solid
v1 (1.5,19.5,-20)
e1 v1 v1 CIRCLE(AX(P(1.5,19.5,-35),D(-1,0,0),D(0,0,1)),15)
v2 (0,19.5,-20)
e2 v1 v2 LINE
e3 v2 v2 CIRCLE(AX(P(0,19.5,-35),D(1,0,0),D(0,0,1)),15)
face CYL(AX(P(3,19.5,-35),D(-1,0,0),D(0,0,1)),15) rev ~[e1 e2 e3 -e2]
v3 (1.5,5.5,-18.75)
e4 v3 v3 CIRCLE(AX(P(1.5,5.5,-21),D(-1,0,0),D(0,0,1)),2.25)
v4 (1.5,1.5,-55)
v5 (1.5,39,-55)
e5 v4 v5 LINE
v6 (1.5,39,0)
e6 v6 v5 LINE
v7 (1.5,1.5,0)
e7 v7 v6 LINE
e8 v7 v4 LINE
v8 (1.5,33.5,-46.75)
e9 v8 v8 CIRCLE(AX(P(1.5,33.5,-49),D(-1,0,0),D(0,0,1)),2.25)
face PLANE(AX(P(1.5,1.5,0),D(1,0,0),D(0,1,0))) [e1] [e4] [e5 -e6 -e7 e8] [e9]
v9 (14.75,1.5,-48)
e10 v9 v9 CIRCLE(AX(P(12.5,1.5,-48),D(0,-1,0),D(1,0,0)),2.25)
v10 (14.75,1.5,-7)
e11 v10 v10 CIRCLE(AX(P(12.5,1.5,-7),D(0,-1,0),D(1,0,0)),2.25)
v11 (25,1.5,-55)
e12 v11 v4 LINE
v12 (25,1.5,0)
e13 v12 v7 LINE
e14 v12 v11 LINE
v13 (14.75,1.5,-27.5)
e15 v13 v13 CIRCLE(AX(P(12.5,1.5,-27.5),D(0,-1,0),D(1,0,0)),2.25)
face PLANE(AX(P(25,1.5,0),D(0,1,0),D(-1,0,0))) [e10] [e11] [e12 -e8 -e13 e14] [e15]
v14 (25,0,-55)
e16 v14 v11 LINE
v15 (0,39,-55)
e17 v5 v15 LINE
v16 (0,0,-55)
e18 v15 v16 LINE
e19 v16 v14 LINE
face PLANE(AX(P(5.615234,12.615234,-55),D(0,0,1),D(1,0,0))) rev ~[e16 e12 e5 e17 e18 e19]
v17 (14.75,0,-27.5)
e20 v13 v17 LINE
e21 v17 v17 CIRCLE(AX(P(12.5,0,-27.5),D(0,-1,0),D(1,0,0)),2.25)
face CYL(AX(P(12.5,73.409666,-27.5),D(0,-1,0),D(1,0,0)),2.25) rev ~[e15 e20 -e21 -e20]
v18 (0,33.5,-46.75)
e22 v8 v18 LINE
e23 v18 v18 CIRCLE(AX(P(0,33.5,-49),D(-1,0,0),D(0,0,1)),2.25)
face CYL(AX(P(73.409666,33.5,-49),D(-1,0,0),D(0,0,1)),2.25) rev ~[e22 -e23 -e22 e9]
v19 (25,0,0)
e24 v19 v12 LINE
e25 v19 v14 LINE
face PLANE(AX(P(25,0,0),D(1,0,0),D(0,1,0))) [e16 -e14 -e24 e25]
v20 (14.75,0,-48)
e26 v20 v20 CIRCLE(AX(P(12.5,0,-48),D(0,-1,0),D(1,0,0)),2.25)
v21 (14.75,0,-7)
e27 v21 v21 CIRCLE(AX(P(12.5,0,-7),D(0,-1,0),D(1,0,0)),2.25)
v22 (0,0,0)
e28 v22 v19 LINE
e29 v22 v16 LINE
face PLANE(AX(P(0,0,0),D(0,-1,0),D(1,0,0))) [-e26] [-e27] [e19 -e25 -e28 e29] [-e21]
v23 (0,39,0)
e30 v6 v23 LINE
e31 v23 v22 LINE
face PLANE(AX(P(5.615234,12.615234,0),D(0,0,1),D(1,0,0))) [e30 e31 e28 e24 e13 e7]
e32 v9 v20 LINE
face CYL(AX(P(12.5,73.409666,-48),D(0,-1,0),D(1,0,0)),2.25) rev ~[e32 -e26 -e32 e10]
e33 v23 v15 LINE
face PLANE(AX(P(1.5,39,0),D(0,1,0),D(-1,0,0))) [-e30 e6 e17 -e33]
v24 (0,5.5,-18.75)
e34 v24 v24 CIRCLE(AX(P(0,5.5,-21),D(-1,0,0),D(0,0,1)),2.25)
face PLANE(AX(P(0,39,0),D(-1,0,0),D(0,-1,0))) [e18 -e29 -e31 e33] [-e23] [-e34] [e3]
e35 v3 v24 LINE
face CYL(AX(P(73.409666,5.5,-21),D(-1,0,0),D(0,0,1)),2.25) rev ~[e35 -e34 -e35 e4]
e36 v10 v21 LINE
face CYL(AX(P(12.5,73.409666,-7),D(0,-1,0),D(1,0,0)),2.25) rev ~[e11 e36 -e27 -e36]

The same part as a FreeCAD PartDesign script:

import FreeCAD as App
import Part
import Sketcher

V = App.Vector
Q = App.Units.Quantity

doc = App.newDocument("Part")
params = doc.addObject("Spreadsheet::Sheet", "Params")
for row, (alias, value) in enumerate([
    ("sketch1_width", "25 mm"),
    ("sketch1_height", "39 mm"),
    ("sketch1_width2", "23.5 mm"),
    ("pad1_length", "55 mm"),
    ("sketch2_diameter", "4.5 mm"),
    ("hole_diameter", "4.5 mm"),
    ("sketch3_diameter", "4.5 mm"),
    ("hole2_diameter", "4.5 mm"),
    ("sketch4_diameter", "30 mm"),
    ("hole3_diameter", "30 mm"),
    ("hole3_depth", "1.5 mm"),
], start=1):
    params.set(f"A{row}", alias)
    params.set(f"B{row}", "=" + value)
    params.setAlias(f"B{row}", alias)

body = doc.addObject("PartDesign::Body", "Body")

# Sketch on XY plane
sketch1 = doc.addObject("Sketcher::SketchObject", "Sketch")
body.addObject(sketch1)
sketch1.AttachmentSupport = (doc.XY_Plane, [""])
sketch1.MapMode = "FlatFace"
sketch1.addGeometry([
    Part.LineSegment(V(0, 39, 0), V(0, 0, 0)),  # 0
    Part.LineSegment(V(0, 0, 0), V(25, 0, 0)),  # 1
    Part.LineSegment(V(25, 0, 0), V(25, 1.5, 0)),  # 2
    Part.LineSegment(V(25, 1.5, 0), V(1.5, 1.5, 0)),  # 3
    Part.LineSegment(V(1.5, 1.5, 0), V(1.5, 39, 0)),  # 4
    Part.LineSegment(V(1.5, 39, 0), V(0, 39, 0)),  # 5
], False)
sketch1.addConstraint([
    Sketcher.Constraint("Coincident", 0, 2, 1, 1),
    Sketcher.Constraint("Coincident", 1, 2, 2, 1),
    Sketcher.Constraint("Coincident", 2, 2, 3, 1),
    Sketcher.Constraint("Coincident", 3, 2, 4, 1),
    Sketcher.Constraint("Coincident", 4, 2, 5, 1),
    Sketcher.Constraint("Coincident", 5, 2, 0, 1),
    Sketcher.Constraint("Vertical", 0),
    Sketcher.Constraint("Horizontal", 1),
    Sketcher.Constraint("Vertical", 2),
    Sketcher.Constraint("Horizontal", 3),
    Sketcher.Constraint("Vertical", 4),
    Sketcher.Constraint("Horizontal", 5),
    Sketcher.Constraint("Coincident", 0, 2, -1, 1),
    Sketcher.Constraint("Equal", 5, 2),
    Sketcher.Constraint("DistanceX", 1, 1, 1, 2, Q("25 mm")),
    Sketcher.Constraint("DistanceY", 0, 2, 0, 1, Q("39 mm")),
    Sketcher.Constraint("DistanceX", 3, 2, 3, 1, Q("23.5 mm")),
])
sketch1.setExpression("Constraints[14]", "Params.sketch1_width")
sketch1.setExpression("Constraints[15]", "Params.sketch1_height")
sketch1.setExpression("Constraints[16]", "Params.sketch1_width2")
pad1 = doc.addObject("PartDesign::Pad", "Pad")
body.addObject(pad1)
pad1.Profile = sketch1
pad1.setExpression("Length", "Params.pad1_length")
pad1.Reversed = True

# Sketch on XZ plane
sketch2 = doc.addObject("Sketcher::SketchObject", "Sketch001")
body.addObject(sketch2)
sketch2.AttachmentSupport = (doc.XZ_Plane, [""])
sketch2.MapMode = "FlatFace"
sketch2.AttachmentOffset = App.Placement(V(0, 0, -1.5), App.Rotation())
sketch2.addGeometry([
    Part.Circle(V(12.5, -7, 0), V(0, 0, 1), 2.25),
    Part.Circle(V(12.5, -27.5, 0), V(0, 0, 1), 2.25),
    Part.Circle(V(12.5, -48, 0), V(0, 0, 1), 2.25),
], False)
sketch2.addConstraint([
    Sketcher.Constraint("Equal", 0, 1),
    Sketcher.Constraint("Equal", 1, 2),
    Sketcher.Constraint("Vertical", 0, 3, 1, 3),
    Sketcher.Constraint("Vertical", 1, 3, 2, 3),
    Sketcher.Constraint("Diameter", 0, Q("4.5 mm")),
    Sketcher.Constraint("DistanceY", 0, 3, -1, 1, Q("7 mm")),
    Sketcher.Constraint("DistanceY", 2, 3, -1, 1, Q("48 mm")),
    Sketcher.Constraint("DistanceX", -1, 1, 0, 3, Q("12.5 mm")),
    Sketcher.Constraint("DistanceY", 1, 3, -1, 1, Q("27.5 mm")),
])
sketch2.setExpression("Constraints[4]", "Params.sketch2_diameter")
doc.recompute()
hole = doc.addObject("PartDesign::Hole", "Hole")
body.addObject(hole)
hole.Profile = sketch2
hole.ThreadType = "None"
hole.setExpression("Diameter", "Params.hole_diameter")
hole.DepthType = "ThroughAll"
hole.Reversed = True

# Sketch on YZ plane
sketch3 = doc.addObject("Sketcher::SketchObject", "Sketch002")
body.addObject(sketch3)
sketch3.AttachmentSupport = (doc.YZ_Plane, [""])
sketch3.MapMode = "FlatFace"
sketch3.AttachmentOffset = App.Placement(V(0, 0, 1.5), App.Rotation())
sketch3.addGeometry([
    Part.Circle(V(33.5, -49, 0), V(0, 0, 1), 2.25),
    Part.Circle(V(5.5, -21, 0), V(0, 0, 1), 2.25),
], False)
sketch3.addConstraint([
    Sketcher.Constraint("Equal", 0, 1),
    Sketcher.Constraint("Diameter", 0, Q("4.5 mm")),
    Sketcher.Constraint("DistanceY", 0, 3, -1, 1, Q("49 mm")),
    Sketcher.Constraint("DistanceY", 1, 3, -1, 1, Q("21 mm")),
    Sketcher.Constraint("DistanceX", 1, 3, 0, 3, Q("28 mm")),
    Sketcher.Constraint("DistanceX", -1, 1, 0, 3, Q("33.5 mm")),
])
sketch3.setExpression("Constraints[1]", "Params.sketch3_diameter")
doc.recompute()
hole2 = doc.addObject("PartDesign::Hole", "Hole001")
body.addObject(hole2)
hole2.Profile = sketch3
hole2.ThreadType = "None"
hole2.setExpression("Diameter", "Params.hole2_diameter")
hole2.DepthType = "ThroughAll"

# Sketch on YZ plane
sketch4 = doc.addObject("Sketcher::SketchObject", "Sketch003")
body.addObject(sketch4)
sketch4.AttachmentSupport = (doc.YZ_Plane, [""])
sketch4.MapMode = "FlatFace"
sketch4.AttachmentOffset = App.Placement(V(0, 0, 1.5), App.Rotation())
sketch4.addGeometry(Part.Circle(V(19.5, -35, 0), V(0, 0, 1), 15), False)
sketch4.addConstraint([
    Sketcher.Constraint("Diameter", 0, Q("30 mm")),
    Sketcher.Constraint("DistanceY", 0, 3, -1, 1, Q("35 mm")),
    Sketcher.Constraint("DistanceX", -1, 1, 0, 3, Q("19.5 mm")),
])
sketch4.setExpression("Constraints[0]", "Params.sketch4_diameter")
doc.recompute()
hole3 = doc.addObject("PartDesign::Hole", "Hole002")
body.addObject(hole3)
hole3.Profile = sketch4
hole3.ThreadType = "None"
hole3.setExpression("Diameter", "Params.hole3_diameter")
hole3.DepthType = "Dimension"
hole3.setExpression("Depth", "Params.hole3_depth")
hole3.DrillPoint = "Angled"
hole3.DrillPointAngle = 118

doc.recompute()
